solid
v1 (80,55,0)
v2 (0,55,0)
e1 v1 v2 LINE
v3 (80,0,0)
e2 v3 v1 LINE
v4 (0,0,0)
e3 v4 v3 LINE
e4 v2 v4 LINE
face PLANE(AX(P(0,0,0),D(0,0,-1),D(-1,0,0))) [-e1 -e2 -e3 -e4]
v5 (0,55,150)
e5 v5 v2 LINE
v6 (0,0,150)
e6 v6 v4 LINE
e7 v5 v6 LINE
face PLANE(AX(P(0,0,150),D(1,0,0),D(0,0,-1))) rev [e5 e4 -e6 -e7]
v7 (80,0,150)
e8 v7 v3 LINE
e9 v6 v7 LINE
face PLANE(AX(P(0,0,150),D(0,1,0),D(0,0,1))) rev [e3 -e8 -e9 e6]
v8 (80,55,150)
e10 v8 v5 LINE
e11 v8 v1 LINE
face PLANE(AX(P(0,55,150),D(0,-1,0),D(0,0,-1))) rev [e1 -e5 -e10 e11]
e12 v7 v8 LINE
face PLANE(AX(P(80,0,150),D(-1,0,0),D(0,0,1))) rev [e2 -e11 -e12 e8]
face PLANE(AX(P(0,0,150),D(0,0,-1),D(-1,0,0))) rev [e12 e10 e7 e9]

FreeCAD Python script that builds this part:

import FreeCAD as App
import Part
import Sketcher
from FreeCAD import Vector

doc = App.newDocument("Part")
body = doc.addObject("PartDesign::Body", "Body")

# Sketch on XY plane
sketch1 = body.newObject("Sketcher::SketchObject", "Sketch")
sketch1.AttachmentSupport = (doc.getObject("XY_Plane"), [""])
sketch1.MapMode = "FlatFace"
sketch1.addGeometry(Part.LineSegment(Vector(0, 55, 0), Vector(0, 0, 0)), False)
sketch1.addGeometry(Part.LineSegment(Vector(0, 0, 0), Vector(80, 0, 0)), False)
sketch1.addGeometry(Part.LineSegment(Vector(80, 0, 0), Vector(80, 55, 0)), False)
sketch1.addGeometry(Part.LineSegment(Vector(80, 55, 0), Vector(0, 55, 0)), False)
sketch1.addConstraint(Sketcher.Constraint("Coincident", 0, 2, 1, 1))
sketch1.addConstraint(Sketcher.Constraint("Coincident", 1, 2, 2, 1))
sketch1.addConstraint(Sketcher.Constraint("Coincident", 2, 2, 3, 1))
sketch1.addConstraint(Sketcher.Constraint("Coincident", 3, 2, 0, 1))
sketch1.addConstraint(Sketcher.Constraint("Vertical", 0))
sketch1.addConstraint(Sketcher.Constraint("Horizontal", 1))
sketch1.addConstraint(Sketcher.Constraint("Vertical", 2))
sketch1.addConstraint(Sketcher.Constraint("Horizontal", 3))
sketch1.addConstraint(Sketcher.Constraint("Coincident", 0, 2, -1, 1))
sketch1.addConstraint(Sketcher.Constraint("DistanceX", 1, 1, 1, 2, 80.0))
sketch1.addConstraint(Sketcher.Constraint("DistanceY", 0, 2, 0, 1, 55.0))
pad1 = body.newObject("PartDesign::Pad", "Pad")
pad1.Profile = sketch1
pad1.Length = 150

doc.recompute()
